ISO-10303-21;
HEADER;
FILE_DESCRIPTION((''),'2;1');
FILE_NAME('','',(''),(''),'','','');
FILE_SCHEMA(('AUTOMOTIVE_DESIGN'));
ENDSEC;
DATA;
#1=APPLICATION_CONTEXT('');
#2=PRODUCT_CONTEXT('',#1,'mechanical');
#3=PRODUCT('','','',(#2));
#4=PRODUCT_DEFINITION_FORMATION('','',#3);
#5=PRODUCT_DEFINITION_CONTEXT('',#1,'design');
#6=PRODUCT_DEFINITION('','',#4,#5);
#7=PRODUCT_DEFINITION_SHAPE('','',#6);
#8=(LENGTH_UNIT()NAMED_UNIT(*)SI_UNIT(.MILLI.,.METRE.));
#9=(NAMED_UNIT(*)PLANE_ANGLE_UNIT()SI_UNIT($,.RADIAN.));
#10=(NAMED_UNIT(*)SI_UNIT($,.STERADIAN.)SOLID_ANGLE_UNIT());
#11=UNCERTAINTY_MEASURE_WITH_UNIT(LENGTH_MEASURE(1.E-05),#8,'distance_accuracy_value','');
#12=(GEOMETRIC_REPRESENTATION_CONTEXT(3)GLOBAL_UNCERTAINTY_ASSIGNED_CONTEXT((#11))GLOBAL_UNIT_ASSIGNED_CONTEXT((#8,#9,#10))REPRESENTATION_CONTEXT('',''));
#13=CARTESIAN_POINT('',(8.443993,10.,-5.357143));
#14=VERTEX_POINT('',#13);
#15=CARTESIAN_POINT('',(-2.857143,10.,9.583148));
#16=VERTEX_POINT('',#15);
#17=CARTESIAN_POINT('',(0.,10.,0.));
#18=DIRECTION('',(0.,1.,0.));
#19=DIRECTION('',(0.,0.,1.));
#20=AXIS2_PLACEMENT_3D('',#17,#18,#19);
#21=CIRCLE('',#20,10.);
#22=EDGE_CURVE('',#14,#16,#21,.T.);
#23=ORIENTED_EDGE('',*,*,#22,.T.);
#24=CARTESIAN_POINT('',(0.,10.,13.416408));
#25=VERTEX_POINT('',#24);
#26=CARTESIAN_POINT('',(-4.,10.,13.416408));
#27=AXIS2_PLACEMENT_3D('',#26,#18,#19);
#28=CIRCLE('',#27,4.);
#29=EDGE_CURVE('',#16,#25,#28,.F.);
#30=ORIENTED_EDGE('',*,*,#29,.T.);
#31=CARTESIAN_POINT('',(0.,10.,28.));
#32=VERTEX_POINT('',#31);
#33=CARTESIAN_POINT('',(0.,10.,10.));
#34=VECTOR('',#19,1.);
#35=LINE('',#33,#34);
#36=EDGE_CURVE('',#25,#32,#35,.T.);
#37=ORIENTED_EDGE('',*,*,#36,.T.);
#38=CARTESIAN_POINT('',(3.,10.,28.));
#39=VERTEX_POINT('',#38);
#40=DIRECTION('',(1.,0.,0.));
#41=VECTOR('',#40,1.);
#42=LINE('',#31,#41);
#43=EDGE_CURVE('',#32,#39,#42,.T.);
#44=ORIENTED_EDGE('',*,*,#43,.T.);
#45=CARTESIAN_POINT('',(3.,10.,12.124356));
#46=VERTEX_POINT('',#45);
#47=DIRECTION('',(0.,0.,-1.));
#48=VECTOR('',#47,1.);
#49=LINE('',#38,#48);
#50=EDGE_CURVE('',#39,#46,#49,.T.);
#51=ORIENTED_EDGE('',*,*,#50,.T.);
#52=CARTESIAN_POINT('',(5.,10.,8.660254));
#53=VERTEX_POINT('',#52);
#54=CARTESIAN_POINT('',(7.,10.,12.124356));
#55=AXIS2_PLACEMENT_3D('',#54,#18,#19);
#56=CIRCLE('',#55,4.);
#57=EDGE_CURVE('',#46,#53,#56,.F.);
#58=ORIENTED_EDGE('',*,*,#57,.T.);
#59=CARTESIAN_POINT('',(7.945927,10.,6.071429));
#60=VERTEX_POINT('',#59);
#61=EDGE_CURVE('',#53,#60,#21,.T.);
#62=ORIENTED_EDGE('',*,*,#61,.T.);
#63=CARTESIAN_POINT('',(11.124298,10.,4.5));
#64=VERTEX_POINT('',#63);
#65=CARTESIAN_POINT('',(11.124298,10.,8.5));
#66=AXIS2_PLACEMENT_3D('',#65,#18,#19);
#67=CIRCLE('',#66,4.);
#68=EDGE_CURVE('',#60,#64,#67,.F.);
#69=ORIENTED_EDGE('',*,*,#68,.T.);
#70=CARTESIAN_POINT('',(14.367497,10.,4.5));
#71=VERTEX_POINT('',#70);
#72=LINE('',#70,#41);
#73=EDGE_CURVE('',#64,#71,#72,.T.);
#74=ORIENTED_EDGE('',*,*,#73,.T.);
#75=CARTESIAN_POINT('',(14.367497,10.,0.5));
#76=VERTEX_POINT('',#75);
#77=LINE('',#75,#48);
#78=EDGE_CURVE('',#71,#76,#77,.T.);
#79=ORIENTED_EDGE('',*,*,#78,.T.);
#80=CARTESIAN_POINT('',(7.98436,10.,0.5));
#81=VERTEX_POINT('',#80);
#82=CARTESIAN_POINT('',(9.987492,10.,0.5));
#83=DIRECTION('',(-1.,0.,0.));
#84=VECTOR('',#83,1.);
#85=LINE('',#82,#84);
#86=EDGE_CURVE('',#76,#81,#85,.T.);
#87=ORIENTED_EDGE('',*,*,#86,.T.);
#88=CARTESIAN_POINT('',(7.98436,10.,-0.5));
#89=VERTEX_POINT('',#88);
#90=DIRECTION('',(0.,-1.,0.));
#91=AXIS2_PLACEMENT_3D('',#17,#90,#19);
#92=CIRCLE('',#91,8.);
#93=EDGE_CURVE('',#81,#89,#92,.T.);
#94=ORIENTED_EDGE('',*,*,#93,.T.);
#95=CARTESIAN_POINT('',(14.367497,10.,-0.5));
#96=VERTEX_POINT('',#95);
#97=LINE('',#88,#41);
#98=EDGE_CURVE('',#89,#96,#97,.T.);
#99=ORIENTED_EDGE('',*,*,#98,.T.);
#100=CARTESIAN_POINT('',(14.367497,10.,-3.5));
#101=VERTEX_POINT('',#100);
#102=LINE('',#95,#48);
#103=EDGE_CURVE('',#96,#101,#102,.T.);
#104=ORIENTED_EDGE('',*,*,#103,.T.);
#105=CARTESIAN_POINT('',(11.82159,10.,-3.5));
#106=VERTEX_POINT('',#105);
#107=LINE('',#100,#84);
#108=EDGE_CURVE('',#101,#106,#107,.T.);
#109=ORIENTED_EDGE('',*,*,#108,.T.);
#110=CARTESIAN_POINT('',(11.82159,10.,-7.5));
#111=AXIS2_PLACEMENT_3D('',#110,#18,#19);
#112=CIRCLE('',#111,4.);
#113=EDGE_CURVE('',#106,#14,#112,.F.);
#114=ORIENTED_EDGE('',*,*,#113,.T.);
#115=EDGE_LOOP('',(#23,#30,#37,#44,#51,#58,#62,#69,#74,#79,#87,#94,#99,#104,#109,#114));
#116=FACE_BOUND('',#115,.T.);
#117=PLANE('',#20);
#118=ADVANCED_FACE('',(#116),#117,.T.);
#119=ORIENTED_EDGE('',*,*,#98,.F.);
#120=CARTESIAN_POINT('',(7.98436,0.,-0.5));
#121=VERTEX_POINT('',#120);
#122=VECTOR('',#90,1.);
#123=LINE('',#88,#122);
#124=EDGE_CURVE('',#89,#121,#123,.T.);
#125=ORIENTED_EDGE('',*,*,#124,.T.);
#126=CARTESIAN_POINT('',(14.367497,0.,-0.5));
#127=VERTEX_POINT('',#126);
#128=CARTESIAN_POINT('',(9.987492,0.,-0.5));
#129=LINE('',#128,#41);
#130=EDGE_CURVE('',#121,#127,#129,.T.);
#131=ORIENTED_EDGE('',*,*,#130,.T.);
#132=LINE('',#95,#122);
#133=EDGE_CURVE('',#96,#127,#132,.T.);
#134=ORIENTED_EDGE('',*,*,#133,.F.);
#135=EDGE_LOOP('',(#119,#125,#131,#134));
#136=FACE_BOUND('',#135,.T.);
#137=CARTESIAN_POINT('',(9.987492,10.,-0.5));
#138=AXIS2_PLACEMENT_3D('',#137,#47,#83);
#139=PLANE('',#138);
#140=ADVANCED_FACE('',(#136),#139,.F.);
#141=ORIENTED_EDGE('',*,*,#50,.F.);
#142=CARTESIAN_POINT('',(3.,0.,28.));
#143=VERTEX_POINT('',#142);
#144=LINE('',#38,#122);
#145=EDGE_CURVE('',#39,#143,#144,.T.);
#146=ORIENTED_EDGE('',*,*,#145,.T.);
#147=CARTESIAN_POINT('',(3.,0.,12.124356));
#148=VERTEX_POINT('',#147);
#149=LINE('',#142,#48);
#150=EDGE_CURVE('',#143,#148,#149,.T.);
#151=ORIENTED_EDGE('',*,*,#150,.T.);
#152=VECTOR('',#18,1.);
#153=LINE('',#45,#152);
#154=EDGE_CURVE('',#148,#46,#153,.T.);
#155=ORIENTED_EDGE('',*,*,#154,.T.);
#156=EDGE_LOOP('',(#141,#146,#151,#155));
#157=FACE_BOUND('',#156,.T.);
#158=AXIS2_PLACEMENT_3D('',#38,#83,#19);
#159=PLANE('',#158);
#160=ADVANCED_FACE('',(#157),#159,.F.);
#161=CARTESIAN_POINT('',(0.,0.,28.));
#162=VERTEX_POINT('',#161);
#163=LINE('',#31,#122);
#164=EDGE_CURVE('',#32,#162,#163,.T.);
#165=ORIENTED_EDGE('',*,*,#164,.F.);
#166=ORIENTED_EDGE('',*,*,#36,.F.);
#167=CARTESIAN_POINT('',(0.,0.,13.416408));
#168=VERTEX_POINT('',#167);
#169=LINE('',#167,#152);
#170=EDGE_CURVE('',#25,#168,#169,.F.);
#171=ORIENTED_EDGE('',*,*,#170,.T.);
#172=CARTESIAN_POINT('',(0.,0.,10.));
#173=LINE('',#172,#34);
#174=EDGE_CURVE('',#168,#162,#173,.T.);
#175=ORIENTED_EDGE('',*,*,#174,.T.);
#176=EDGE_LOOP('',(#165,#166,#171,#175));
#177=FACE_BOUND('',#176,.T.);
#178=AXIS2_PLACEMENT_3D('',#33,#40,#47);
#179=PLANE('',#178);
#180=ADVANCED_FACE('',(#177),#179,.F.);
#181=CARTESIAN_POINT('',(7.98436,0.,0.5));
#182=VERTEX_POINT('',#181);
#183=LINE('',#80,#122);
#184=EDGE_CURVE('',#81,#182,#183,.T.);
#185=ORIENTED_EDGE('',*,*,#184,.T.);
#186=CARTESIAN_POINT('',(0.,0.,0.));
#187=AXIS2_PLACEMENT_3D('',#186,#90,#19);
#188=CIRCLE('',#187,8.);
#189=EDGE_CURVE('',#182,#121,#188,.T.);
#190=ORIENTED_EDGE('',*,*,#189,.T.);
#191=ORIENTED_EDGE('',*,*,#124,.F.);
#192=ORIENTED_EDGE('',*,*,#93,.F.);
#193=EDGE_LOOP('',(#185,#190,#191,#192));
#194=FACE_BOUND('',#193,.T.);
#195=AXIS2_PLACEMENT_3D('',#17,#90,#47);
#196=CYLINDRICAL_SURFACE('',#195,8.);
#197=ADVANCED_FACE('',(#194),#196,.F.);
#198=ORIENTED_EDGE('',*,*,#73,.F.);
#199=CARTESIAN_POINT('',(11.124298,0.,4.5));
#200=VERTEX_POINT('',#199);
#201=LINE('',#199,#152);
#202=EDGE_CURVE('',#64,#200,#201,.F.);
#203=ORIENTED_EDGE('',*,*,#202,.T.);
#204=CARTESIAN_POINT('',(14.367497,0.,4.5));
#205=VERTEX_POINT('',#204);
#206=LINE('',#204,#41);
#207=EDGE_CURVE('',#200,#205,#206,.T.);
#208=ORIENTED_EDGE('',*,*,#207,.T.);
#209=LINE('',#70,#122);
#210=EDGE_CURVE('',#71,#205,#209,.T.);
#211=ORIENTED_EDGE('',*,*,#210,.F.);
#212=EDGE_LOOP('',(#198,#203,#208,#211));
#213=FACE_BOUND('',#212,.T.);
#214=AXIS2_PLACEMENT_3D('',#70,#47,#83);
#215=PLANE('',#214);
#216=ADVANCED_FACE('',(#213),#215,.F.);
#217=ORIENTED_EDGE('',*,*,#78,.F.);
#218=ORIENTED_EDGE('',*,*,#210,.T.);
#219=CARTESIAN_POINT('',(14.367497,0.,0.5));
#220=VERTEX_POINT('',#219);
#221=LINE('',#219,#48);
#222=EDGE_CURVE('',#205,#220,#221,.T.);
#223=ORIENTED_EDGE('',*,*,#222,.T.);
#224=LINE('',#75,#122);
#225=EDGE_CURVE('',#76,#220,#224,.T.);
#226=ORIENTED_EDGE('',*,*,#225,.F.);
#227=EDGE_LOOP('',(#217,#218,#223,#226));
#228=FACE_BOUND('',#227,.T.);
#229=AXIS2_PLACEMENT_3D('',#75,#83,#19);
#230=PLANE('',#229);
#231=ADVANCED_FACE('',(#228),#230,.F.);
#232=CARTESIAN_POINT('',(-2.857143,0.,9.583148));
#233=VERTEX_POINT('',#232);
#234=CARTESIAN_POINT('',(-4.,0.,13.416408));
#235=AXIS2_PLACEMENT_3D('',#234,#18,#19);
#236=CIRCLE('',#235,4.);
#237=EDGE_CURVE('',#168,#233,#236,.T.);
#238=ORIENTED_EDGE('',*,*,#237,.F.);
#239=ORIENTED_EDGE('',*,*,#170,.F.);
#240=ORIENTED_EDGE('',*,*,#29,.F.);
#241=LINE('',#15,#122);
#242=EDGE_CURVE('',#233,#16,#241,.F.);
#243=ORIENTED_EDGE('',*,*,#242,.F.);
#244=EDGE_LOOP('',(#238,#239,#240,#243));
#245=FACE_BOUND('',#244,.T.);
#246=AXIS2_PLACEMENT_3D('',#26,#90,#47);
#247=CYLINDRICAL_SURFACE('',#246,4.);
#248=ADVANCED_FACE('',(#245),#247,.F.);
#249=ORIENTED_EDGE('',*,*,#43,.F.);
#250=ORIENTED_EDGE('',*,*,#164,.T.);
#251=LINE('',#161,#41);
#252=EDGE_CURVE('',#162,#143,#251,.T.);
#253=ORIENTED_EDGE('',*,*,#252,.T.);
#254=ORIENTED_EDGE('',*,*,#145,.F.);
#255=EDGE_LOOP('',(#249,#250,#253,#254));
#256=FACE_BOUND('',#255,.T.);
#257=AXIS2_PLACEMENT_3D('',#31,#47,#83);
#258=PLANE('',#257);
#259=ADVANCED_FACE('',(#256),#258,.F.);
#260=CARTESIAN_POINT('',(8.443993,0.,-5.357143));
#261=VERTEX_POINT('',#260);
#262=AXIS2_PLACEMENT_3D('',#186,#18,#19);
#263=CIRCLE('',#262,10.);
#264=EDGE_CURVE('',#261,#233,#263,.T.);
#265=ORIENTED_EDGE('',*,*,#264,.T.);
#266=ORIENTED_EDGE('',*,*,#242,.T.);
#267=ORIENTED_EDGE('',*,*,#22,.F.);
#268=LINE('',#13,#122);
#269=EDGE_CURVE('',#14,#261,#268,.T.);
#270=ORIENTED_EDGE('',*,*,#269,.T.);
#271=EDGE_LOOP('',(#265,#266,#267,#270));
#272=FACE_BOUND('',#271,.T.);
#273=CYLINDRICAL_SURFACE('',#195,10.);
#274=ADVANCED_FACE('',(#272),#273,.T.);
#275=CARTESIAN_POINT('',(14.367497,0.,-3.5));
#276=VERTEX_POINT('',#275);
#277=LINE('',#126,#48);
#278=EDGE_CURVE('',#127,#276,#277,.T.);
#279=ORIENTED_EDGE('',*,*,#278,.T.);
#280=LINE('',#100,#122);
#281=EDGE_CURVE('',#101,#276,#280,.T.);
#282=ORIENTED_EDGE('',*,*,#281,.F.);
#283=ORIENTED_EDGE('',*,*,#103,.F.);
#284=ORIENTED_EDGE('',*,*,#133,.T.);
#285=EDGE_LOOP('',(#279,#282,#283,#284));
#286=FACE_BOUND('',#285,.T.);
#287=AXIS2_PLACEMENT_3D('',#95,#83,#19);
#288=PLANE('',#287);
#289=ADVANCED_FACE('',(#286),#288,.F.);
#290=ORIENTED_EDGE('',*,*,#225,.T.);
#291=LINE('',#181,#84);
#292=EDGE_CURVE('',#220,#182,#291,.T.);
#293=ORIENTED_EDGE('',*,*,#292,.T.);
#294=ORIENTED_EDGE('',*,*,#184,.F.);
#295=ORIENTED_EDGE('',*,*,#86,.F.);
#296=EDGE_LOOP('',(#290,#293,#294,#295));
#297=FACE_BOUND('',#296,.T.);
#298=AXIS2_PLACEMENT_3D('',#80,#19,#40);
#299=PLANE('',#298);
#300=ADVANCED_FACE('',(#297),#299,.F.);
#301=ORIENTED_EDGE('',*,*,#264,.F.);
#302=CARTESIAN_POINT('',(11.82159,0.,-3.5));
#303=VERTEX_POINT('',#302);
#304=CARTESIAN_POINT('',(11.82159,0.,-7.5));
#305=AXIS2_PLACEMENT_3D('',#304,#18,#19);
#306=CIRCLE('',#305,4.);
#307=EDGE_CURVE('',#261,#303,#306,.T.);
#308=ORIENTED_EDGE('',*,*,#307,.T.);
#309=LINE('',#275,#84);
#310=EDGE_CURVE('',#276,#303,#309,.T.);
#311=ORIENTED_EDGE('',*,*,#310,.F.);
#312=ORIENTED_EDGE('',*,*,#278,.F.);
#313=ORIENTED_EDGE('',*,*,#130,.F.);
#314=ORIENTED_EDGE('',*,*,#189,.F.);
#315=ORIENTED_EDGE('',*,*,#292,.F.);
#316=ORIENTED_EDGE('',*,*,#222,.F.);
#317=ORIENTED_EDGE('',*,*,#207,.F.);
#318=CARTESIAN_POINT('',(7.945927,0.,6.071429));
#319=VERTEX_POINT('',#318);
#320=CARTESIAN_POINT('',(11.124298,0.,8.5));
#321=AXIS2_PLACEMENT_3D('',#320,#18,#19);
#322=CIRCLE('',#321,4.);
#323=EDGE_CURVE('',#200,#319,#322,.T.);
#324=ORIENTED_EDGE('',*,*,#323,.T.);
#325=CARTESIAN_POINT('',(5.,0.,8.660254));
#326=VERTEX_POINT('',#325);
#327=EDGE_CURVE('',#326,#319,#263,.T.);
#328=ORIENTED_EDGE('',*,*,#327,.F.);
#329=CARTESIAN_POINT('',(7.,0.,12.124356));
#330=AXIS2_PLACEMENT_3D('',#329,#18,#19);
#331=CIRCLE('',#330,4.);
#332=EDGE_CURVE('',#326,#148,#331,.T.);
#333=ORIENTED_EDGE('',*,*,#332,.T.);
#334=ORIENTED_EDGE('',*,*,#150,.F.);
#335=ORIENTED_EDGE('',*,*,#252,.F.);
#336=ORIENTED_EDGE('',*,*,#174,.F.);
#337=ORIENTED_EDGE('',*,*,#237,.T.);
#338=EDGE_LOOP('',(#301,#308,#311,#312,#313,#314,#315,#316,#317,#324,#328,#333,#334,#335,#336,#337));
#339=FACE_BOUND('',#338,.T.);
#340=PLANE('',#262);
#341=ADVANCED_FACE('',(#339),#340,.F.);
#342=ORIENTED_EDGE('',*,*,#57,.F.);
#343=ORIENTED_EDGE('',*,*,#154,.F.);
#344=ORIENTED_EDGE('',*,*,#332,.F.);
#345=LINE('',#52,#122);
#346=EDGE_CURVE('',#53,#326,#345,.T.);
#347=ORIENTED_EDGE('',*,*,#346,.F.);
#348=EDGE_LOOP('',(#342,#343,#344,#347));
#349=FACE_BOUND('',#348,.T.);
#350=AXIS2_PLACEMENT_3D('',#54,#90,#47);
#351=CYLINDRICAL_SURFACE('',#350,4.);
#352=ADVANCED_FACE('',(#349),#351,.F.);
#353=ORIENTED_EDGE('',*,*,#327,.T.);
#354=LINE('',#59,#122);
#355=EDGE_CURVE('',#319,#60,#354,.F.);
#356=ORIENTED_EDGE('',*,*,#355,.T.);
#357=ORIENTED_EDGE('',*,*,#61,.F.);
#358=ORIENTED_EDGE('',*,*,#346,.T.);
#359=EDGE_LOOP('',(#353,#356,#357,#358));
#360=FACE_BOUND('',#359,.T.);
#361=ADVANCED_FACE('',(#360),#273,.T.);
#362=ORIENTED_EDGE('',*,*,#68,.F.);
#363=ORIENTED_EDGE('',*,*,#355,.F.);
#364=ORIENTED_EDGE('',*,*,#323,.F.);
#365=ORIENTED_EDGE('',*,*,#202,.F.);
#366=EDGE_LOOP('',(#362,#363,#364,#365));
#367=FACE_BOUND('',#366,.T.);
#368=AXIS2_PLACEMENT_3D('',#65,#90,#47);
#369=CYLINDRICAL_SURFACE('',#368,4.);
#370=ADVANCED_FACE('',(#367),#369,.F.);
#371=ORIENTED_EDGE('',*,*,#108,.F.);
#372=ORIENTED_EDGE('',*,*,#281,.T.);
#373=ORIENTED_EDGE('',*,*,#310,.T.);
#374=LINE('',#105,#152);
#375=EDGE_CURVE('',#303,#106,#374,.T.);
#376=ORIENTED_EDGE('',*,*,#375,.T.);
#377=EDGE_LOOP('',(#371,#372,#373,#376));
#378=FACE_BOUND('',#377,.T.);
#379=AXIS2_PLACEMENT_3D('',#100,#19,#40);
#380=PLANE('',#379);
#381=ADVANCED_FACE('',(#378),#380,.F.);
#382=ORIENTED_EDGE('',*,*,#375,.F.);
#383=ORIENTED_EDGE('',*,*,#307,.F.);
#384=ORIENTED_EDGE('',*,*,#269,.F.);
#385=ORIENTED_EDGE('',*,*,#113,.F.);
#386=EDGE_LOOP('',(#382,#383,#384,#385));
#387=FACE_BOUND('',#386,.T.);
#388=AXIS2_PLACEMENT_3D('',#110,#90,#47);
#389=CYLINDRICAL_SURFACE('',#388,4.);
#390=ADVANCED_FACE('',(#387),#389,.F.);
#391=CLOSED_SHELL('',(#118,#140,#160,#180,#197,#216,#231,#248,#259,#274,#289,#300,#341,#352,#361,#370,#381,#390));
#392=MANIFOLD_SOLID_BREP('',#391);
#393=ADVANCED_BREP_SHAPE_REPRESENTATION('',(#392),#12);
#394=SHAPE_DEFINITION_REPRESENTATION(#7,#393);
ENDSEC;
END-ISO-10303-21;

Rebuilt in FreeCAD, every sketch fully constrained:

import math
import FreeCAD as App
import Part
import Sketcher


def edges_at(feature, points):
    """Names of the edges that pass closest to the given points."""
    edges = feature.Shape.Edges
    near = lambda p: min(range(len(edges)), key=lambda i: edges[i].distToShape(Part.Vertex(*p))[0])
    return sorted({f"Edge{near(p) + 1}" for p in points})

doc = App.newDocument("Part")
body = doc.addObject("PartDesign::Body", "Body")

sketch1 = doc.addObject("Sketcher::SketchObject", "Sketch")
body.addObject(sketch1)
sketch1.AttachmentSupport = (doc.XZ_Plane, [""])
sketch1.MapMode = "FlatFace"
sketch1.addGeometry([
    Part.LineSegment(App.Vector(0, 10, 0), App.Vector(0, 28, 0)),
    Part.LineSegment(App.Vector(0, 28, 0), App.Vector(3, 28, 0)),
    Part.LineSegment(App.Vector(3, 28, 0), App.Vector(3, 9.5, 0)),
    Part.ArcOfCircle(Part.Circle(App.Vector(0, 0, 0), App.Vector(0, 0, 1), 10), math.radians(27), math.radians(73)),
    Part.LineSegment(App.Vector(8.9, 4.5, 0), App.Vector(14.4, 4.5, 0)),
    Part.LineSegment(App.Vector(14.4, 4.5, 0), App.Vector(14.4, 0.5, 0)),
    Part.LineSegment(App.Vector(14.4, 0.5, 0), App.Vector(8, 0.5, 0)),
    Part.ArcOfCircle(Part.Circle(App.Vector(0, 0, 0), App.Vector(0, 0, 1), 8), math.radians(4), math.radians(356)),
    Part.LineSegment(App.Vector(8, -0.5, 0), App.Vector(14.4, -0.5, 0)),
    Part.LineSegment(App.Vector(14.4, -0.5, 0), App.Vector(14.4, -3.5, 0)),
    Part.LineSegment(App.Vector(14.4, -3.5, 0), App.Vector(9.4, -3.5, 0)),
    Part.ArcOfCircle(Part.Circle(App.Vector(0, 0, 0), App.Vector(0, 0, 1), 10), math.radians(90), math.radians(340)),
], False)
sketch1.addConstraint([
    Sketcher.Constraint("Coincident", 0, 2, 1, 1),
    Sketcher.Constraint("Coincident", 1, 2, 2, 1),
    Sketcher.Constraint("Coincident", 2, 2, 3, 2),
    Sketcher.Constraint("Coincident", 3, 1, 4, 1),
    Sketcher.Constraint("Coincident", 4, 2, 5, 1),
    Sketcher.Constraint("Coincident", 5, 2, 6, 1),
    Sketcher.Constraint("Coincident", 6, 2, 7, 1),
    Sketcher.Constraint("Coincident", 7, 2, 8, 1),
    Sketcher.Constraint("Coincident", 8, 2, 9, 1),
    Sketcher.Constraint("Coincident", 9, 2, 10, 1),
    Sketcher.Constraint("Coincident", 10, 2, 11, 2),
    Sketcher.Constraint("Coincident", 11, 1, 0, 1),
    Sketcher.Constraint("Vertical", 0),
    Sketcher.Constraint("Horizontal", 1),
    Sketcher.Constraint("Vertical", 2),
    Sketcher.Constraint("Horizontal", 4),
    Sketcher.Constraint("Vertical", 5),
    Sketcher.Constraint("Horizontal", 6),
    Sketcher.Constraint("Horizontal", 8),
    Sketcher.Constraint("Vertical", 9),
    Sketcher.Constraint("Horizontal", 10),
    Sketcher.Constraint("Coincident", 3, 3, -1, 1),
    Sketcher.Constraint("Coincident", 7, 3, -1, 1),
    Sketcher.Constraint("Coincident", 11, 3, -1, 1),
    Sketcher.Constraint("Equal", 3, 11),
    Sketcher.Constraint("Symmetric", 5, 2, 8, 2, -1),
    Sketcher.Constraint("PointOnObject", 0, 2, -2),
    Sketcher.Constraint("Equal", 1, 9),
    Sketcher.Constraint("Radius", 3, 10.0),
    Sketcher.Constraint("Radius", 7, 8.0),
    Sketcher.Constraint("DistanceX", 1, 1, 1, 2, 3.0),
    Sketcher.Constraint("DistanceX", 10, 2, 10, 1, 5.0),
    Sketcher.Constraint("DistanceY", 0, 1, 0, 2, 18.0),
    Sketcher.Constraint("DistanceY", 5, 2, 5, 1, 4.0),
    Sketcher.Constraint("DistanceY", 7, 2, 6, 2, 1.0),
])
pad1 = doc.addObject("PartDesign::Pad", "Pad")
body.addObject(pad1)
pad1.Profile = sketch1
pad1.Length = 10
pad1.Reversed = True
doc.recompute()

fillet = doc.addObject("PartDesign::Fillet", "Fillet")
body.addObject(fillet)
fillet.Base = (pad1, edges_at(pad1, [
    (8.93, 5, 4.5),
    (3, 5, 9.539),
    (0, 5, 10),
    (9.367, 5, -3.5),
]))
fillet.Radius = 4

doc.recompute()
